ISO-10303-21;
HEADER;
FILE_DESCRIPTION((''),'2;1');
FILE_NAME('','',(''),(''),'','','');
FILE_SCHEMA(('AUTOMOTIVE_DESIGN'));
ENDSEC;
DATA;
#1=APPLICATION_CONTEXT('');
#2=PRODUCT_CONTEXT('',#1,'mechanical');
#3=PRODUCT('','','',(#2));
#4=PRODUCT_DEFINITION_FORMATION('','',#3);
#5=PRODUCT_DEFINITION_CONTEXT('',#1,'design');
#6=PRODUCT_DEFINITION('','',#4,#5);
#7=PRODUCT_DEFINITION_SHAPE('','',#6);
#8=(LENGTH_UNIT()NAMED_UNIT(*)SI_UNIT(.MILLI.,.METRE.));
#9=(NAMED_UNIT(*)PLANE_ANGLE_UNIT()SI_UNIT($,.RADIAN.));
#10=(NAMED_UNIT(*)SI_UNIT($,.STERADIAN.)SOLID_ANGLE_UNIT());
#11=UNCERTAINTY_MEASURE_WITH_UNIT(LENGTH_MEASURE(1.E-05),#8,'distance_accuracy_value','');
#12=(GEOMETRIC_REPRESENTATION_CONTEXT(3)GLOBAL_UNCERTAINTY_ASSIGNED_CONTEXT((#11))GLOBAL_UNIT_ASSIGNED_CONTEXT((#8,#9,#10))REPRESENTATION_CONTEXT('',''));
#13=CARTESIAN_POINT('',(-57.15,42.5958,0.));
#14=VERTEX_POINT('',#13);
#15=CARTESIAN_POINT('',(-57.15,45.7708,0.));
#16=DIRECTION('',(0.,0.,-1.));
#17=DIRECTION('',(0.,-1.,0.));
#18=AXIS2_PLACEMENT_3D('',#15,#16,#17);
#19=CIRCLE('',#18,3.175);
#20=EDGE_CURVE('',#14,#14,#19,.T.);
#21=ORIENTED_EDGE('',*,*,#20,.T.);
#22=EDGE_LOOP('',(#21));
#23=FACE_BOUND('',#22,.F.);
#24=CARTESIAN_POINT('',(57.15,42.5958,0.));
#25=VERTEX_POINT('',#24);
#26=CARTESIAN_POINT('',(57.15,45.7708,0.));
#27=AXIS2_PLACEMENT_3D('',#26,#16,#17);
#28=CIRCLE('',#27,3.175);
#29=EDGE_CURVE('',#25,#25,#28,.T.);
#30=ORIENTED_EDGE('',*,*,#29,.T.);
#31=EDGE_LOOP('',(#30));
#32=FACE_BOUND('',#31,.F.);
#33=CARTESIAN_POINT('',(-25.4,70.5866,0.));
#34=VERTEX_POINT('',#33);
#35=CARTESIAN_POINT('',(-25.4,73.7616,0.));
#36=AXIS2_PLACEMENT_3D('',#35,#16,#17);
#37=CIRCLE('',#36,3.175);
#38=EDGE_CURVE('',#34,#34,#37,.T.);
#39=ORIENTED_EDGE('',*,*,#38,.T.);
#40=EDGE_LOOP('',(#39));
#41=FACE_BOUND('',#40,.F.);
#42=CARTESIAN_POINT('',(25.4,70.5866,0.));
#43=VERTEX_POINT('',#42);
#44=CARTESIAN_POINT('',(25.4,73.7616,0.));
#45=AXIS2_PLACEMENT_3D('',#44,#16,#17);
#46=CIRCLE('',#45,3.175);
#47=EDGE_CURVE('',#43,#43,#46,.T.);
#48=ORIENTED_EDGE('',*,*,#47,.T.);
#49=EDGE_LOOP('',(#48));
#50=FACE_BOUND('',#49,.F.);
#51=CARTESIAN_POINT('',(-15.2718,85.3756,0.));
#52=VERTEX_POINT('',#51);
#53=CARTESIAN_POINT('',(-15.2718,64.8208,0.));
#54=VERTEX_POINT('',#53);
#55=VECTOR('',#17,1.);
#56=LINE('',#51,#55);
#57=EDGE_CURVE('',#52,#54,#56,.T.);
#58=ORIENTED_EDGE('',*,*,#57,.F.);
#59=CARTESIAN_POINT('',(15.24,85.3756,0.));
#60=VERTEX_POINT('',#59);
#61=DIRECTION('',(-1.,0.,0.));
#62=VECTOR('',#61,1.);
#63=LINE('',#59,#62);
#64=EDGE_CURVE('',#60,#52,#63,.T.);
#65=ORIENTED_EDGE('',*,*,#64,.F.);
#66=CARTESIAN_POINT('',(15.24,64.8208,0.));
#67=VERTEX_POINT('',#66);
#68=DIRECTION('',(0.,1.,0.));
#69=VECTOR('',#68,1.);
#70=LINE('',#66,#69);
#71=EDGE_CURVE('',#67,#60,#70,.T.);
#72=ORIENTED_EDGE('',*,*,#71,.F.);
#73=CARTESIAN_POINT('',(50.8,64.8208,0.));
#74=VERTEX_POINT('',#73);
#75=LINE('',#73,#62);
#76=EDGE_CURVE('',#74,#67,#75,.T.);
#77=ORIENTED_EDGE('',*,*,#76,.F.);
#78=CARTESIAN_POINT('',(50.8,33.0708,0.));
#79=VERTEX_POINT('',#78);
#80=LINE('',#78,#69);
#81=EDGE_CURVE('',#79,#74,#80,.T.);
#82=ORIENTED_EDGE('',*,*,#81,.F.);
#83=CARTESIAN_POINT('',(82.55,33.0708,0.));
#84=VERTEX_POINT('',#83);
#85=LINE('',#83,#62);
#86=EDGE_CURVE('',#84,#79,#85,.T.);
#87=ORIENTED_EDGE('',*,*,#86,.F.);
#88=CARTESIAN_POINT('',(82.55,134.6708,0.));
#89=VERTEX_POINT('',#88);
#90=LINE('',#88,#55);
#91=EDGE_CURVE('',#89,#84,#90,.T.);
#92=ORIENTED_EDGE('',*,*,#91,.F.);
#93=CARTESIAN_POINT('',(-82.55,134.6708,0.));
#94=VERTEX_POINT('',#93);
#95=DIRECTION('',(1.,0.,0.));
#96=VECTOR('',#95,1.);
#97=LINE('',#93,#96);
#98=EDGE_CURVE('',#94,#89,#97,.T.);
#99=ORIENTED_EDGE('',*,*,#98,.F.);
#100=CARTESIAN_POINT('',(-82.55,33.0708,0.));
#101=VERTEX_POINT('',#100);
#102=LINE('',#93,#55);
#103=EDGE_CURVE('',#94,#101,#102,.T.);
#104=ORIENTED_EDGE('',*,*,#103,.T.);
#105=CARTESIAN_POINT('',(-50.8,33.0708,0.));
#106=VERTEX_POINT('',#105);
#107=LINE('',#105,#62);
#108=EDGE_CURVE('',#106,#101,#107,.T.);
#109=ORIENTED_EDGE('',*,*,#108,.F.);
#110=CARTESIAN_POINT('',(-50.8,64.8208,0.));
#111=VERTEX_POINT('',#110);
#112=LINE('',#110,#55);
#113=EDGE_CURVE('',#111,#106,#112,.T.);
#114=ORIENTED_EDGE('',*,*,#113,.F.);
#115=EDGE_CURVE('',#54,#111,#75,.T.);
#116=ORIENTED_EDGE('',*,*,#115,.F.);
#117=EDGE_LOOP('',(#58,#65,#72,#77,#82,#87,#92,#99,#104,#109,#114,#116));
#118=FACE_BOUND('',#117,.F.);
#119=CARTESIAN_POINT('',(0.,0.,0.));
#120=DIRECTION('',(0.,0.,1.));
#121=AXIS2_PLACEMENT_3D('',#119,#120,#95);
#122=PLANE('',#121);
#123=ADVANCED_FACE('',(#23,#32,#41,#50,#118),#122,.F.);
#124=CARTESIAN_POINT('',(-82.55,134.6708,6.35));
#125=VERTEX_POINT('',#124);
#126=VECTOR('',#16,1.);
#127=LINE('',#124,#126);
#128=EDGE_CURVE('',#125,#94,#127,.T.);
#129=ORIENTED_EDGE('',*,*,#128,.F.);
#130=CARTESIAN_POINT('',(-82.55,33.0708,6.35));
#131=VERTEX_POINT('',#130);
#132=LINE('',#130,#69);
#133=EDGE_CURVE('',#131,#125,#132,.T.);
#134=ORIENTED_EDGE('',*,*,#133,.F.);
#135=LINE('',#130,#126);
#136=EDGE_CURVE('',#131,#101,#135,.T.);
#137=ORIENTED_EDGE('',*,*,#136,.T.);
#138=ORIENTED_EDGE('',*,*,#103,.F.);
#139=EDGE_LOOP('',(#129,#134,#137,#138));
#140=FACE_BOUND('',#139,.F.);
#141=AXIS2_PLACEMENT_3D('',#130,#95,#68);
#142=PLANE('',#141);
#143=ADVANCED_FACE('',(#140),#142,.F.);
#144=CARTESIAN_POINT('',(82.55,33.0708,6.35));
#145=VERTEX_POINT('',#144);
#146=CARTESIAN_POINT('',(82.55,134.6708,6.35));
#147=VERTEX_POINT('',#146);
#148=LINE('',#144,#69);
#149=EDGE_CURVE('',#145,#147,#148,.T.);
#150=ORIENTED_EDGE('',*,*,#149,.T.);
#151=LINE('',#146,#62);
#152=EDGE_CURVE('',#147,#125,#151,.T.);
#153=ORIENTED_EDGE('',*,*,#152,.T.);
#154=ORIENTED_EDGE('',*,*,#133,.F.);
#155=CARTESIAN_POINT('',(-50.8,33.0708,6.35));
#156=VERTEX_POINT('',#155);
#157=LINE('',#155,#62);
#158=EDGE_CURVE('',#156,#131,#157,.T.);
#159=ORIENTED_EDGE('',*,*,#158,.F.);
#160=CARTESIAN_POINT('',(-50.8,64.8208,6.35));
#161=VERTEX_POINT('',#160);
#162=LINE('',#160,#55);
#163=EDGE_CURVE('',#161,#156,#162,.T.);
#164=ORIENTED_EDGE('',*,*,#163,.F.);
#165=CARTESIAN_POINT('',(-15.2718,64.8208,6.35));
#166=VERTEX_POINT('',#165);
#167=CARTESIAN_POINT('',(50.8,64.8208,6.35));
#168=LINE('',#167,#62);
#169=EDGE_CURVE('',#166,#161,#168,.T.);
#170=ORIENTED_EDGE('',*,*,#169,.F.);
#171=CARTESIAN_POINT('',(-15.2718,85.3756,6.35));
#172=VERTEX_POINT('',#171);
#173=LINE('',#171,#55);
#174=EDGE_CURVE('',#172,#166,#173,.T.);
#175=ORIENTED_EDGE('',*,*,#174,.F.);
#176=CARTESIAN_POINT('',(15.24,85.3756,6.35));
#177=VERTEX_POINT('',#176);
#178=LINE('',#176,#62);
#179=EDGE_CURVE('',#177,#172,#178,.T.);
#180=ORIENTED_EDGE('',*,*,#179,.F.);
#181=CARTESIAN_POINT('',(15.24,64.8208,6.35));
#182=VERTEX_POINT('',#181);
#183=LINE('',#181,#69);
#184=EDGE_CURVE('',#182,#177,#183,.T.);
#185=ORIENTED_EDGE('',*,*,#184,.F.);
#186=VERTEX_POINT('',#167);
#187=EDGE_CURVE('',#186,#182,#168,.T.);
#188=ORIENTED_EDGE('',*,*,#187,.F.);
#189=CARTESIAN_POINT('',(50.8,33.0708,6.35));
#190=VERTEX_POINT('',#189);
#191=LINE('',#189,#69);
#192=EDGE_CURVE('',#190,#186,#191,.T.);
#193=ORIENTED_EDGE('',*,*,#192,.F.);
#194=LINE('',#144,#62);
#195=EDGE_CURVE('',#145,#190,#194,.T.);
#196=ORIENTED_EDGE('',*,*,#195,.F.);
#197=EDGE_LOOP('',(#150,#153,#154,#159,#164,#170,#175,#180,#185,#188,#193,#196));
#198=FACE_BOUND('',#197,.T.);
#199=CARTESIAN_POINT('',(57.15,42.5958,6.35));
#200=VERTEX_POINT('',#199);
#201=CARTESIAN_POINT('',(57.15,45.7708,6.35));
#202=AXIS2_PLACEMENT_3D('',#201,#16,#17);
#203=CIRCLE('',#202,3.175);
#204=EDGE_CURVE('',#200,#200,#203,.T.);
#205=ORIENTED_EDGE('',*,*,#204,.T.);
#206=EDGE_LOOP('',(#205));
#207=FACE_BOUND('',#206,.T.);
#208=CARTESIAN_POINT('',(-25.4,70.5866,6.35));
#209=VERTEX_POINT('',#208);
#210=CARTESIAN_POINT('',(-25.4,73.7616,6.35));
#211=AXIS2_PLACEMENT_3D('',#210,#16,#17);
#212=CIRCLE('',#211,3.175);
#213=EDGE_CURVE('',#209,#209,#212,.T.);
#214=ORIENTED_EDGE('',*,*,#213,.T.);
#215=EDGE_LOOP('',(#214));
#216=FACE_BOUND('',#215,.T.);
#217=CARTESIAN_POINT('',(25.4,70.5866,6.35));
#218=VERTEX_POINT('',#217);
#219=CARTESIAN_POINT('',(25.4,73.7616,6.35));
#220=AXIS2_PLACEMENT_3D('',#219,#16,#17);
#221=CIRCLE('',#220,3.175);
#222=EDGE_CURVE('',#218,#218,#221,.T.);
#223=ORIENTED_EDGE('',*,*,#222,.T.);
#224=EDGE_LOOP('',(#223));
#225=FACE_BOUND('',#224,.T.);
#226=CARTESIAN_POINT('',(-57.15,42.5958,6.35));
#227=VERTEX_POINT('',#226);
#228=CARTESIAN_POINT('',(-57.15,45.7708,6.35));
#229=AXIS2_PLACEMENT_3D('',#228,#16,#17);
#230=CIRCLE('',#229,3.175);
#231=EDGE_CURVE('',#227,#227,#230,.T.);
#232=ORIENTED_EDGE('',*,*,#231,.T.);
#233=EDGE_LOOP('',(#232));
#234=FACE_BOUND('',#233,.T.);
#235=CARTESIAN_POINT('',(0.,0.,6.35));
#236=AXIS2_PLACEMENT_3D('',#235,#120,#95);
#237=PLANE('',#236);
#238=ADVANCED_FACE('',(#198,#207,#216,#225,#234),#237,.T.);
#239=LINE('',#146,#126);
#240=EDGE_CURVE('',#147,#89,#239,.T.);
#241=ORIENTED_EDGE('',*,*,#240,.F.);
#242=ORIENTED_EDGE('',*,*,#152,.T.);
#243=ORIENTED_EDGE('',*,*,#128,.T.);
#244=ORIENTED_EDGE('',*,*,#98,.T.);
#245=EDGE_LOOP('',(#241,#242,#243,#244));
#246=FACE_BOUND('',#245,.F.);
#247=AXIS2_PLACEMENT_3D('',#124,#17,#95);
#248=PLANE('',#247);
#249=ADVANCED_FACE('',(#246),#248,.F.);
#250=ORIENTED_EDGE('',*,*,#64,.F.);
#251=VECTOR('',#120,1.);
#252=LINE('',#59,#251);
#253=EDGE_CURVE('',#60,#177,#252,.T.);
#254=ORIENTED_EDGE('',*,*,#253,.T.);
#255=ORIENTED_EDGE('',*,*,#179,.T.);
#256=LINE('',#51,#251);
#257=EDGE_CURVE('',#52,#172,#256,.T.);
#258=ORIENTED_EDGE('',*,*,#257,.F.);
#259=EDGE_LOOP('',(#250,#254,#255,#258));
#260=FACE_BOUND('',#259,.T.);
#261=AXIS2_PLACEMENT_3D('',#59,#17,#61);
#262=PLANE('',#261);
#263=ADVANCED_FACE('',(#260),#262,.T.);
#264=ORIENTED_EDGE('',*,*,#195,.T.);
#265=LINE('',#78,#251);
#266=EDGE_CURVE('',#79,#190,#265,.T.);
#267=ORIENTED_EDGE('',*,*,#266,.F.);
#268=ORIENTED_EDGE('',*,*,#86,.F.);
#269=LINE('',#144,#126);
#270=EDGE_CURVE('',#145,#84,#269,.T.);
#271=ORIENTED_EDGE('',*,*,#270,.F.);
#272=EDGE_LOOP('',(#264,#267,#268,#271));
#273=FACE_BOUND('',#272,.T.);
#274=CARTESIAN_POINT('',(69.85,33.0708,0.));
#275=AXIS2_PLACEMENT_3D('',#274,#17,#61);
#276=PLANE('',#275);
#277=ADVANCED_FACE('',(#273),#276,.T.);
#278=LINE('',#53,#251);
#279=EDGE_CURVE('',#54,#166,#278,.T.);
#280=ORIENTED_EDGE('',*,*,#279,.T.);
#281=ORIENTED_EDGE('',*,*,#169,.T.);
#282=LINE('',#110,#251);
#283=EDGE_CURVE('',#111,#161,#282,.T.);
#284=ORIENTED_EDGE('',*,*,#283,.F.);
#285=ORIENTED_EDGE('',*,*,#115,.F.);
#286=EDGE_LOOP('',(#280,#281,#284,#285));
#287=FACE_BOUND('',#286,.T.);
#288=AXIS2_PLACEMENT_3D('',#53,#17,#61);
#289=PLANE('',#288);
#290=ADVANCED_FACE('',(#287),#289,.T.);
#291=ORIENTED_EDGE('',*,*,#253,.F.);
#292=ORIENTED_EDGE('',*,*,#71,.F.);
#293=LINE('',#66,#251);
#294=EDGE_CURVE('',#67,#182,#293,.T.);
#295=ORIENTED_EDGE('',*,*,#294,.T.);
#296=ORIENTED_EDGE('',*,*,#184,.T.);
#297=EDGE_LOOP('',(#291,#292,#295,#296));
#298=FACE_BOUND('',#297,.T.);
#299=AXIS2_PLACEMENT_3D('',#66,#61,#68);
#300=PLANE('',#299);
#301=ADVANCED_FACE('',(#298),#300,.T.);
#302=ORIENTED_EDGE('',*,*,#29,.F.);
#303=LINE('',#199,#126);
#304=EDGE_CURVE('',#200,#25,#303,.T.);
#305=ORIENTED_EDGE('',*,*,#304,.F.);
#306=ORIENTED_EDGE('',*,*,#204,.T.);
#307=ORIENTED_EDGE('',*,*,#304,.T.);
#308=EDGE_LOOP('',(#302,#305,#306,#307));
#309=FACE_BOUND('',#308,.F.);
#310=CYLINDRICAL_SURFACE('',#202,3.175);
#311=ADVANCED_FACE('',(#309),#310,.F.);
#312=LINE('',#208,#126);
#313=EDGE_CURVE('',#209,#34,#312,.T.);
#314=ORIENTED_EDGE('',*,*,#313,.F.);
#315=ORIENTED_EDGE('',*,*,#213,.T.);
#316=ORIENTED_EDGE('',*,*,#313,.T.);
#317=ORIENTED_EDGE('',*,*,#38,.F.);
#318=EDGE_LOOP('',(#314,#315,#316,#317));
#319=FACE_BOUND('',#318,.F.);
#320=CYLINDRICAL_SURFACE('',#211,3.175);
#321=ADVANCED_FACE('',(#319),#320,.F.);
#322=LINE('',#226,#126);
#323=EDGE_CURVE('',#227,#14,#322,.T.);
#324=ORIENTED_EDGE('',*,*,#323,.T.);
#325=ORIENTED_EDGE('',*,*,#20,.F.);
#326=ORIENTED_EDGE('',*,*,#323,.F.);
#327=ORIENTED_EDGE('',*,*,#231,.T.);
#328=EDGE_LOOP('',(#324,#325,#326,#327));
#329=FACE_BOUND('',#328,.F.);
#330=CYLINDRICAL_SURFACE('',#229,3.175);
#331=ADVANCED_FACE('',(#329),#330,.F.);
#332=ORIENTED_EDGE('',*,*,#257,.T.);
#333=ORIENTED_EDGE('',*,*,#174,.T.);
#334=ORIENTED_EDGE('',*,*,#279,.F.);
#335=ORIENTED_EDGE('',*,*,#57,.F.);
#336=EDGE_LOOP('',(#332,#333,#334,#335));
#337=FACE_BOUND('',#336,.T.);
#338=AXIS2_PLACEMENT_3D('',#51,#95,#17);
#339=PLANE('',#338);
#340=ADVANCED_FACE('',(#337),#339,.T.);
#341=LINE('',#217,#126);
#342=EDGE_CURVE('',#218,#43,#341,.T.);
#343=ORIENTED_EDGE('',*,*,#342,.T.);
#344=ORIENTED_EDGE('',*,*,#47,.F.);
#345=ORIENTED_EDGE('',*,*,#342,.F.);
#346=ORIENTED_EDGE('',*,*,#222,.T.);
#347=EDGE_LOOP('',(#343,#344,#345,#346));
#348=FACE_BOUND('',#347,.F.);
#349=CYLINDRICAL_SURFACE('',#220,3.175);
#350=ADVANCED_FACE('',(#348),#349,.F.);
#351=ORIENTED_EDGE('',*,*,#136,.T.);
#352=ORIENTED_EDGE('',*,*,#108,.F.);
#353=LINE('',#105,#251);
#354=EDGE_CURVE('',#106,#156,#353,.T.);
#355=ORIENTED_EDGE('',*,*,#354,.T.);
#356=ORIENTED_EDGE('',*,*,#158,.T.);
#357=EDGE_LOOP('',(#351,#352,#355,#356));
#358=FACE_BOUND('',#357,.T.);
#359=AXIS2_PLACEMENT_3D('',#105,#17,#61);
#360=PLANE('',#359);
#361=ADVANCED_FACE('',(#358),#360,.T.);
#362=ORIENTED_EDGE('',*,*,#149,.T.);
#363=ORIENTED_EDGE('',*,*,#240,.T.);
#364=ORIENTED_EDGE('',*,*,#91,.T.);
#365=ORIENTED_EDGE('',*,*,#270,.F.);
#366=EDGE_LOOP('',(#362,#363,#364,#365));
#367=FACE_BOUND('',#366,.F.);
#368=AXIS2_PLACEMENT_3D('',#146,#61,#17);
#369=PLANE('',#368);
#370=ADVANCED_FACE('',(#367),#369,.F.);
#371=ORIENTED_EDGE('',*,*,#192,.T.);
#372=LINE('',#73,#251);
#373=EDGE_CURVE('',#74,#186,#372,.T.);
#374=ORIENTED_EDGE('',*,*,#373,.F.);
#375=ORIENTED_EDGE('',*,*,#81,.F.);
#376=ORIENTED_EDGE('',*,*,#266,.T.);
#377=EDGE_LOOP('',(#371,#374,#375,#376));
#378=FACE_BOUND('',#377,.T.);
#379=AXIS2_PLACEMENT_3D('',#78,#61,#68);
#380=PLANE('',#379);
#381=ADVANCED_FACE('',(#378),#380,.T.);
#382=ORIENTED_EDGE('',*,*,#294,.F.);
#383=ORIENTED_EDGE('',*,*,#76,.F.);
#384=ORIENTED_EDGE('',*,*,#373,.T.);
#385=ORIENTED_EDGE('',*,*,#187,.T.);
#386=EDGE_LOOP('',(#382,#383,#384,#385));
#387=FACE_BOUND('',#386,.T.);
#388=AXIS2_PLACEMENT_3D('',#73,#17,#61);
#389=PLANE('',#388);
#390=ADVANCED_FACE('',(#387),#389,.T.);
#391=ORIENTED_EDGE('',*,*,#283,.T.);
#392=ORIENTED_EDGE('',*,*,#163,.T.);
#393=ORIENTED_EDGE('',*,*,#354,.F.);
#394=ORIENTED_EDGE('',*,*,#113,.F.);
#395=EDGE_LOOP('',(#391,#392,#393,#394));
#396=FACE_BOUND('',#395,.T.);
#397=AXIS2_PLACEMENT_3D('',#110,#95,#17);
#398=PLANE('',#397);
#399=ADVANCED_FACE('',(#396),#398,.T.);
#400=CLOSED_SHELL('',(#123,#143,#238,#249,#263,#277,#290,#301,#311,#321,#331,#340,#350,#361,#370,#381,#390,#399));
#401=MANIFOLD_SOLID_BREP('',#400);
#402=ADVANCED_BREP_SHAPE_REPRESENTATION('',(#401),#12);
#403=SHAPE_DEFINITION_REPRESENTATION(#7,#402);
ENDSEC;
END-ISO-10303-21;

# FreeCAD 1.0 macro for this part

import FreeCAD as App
import Part
import Sketcher
Q = App.Units.Quantity

doc = App.newDocument("Part")
body = doc.addObject("PartDesign::Body", "Body")

sketch1 = body.newObject("Sketcher::SketchObject", "Sketch")
sketch1.AttachmentSupport = (doc.getObject("XY_Plane"), [""])
sketch1.MapMode = "FlatFace"
sketch1.addGeometry([
    Part.LineSegment(App.Vector(70, 122, 0), App.Vector(-70, 122, 0)),
    Part.LineSegment(App.Vector(-70, 122, 0), App.Vector(-70, 33, 0)),
    Part.LineSegment(App.Vector(-70, 33, 0), App.Vector(-51, 33, 0)),
    Part.LineSegment(App.Vector(-51, 33, 0), App.Vector(-51, 65, 0)),
    Part.LineSegment(App.Vector(-51, 65, 0), App.Vector(-15, 65, 0)),
    Part.LineSegment(App.Vector(-15, 65, 0), App.Vector(-15, 85, 0)),
    Part.LineSegment(App.Vector(-15, 85, 0), App.Vector(15, 85, 0)),
    Part.LineSegment(App.Vector(15, 85, 0), App.Vector(15, 65, 0)),
    Part.LineSegment(App.Vector(15, 65, 0), App.Vector(51, 65, 0)),
    Part.LineSegment(App.Vector(51, 65, 0), App.Vector(51, 33, 0)),
    Part.LineSegment(App.Vector(51, 33, 0), App.Vector(70, 33, 0)),
    Part.LineSegment(App.Vector(70, 33, 0), App.Vector(70, 122, 0)),
], False)
sketch1.addConstraint([
    Sketcher.Constraint("Coincident", 0, 2, 1, 1),
    Sketcher.Constraint("Coincident", 1, 2, 2, 1),
    Sketcher.Constraint("Coincident", 2, 2, 3, 1),
    Sketcher.Constraint("Coincident", 3, 2, 4, 1),
    Sketcher.Constraint("Coincident", 4, 2, 5, 1),
    Sketcher.Constraint("Coincident", 5, 2, 6, 1),
    Sketcher.Constraint("Coincident", 6, 2, 7, 1),
    Sketcher.Constraint("Coincident", 7, 2, 8, 1),
    Sketcher.Constraint("Coincident", 8, 2, 9, 1),
    Sketcher.Constraint("Coincident", 9, 2, 10, 1),
    Sketcher.Constraint("Coincident", 10, 2, 11, 1),
    Sketcher.Constraint("Coincident", 11, 2, 0, 1),
    Sketcher.Constraint("Horizontal", 0),
    Sketcher.Constraint("Vertical", 1),
    Sketcher.Constraint("Horizontal", 2),
    Sketcher.Constraint("Vertical", 3),
    Sketcher.Constraint("Horizontal", 4),
    Sketcher.Constraint("Vertical", 5),
    Sketcher.Constraint("Horizontal", 6),
    Sketcher.Constraint("Vertical", 7),
    Sketcher.Constraint("Horizontal", 8),
    Sketcher.Constraint("Vertical", 9),
    Sketcher.Constraint("Horizontal", 10),
    Sketcher.Constraint("Vertical", 11),
    Sketcher.Constraint("Symmetric", 3, 2, 8, 2, -2),
    Sketcher.Constraint("Symmetric", 1, 2, 10, 2, -2),
    Sketcher.Constraint("DistanceX", 0, 2, 0, 1, Q("5.5 in")),
    Sketcher.Constraint("DistanceX", 8, 1, 8, 2, Q("1.4 in")),
    Sketcher.Constraint("DistanceY", 1, 2, 1, 1, Q("3.5 in")),
    Sketcher.Constraint("DistanceX", 2, 2, -1, 1, Q("2 in")),
    Sketcher.Constraint("DistanceY", 3, 1, 3, 2, Q("1.25 in")),
    Sketcher.Constraint("DistanceY", -1, 1, 0, 2, Q("4.802 in")),
    Sketcher.Constraint("DistanceX", 4, 1, 4, 2, 35.5282),
    Sketcher.Constraint("DistanceY", 5, 1, 5, 2, 20.5548),
])
pad1 = body.newObject("PartDesign::Pad", "Pad")
pad1.Profile = sketch1
pad1.Length = Q("0.25 in")

sketch2 = body.newObject("Sketcher::SketchObject", "Sketch001")
sketch2.AttachmentSupport = (doc.getObject("XY_Plane"), [""])
sketch2.MapMode = "FlatFace"
sketch2.AttachmentOffset = App.Placement(App.Vector(0, 0, 0.25 * 25.4), App.Rotation())
sketch2.addGeometry([
    Part.Circle(App.Vector(25.4, 73.8, 0), App.Vector(0, 0, 1), 3.2),
    Part.Circle(App.Vector(-57.1, 45.8, 0), App.Vector(0, 0, 1), 3.2),
    Part.Circle(App.Vector(57.1, 45.8, 0), App.Vector(0, 0, 1), 3.2),
    Part.Circle(App.Vector(-25.4, 73.8, 0), App.Vector(0, 0, 1), 3.2),
], False)
sketch2.addConstraint([
    Sketcher.Constraint("Equal", 0, 1),
    Sketcher.Constraint("Equal", 1, 2),
    Sketcher.Constraint("Equal", 2, 3),
    Sketcher.Constraint("Symmetric", 1, 3, 2, 3, -2),
    Sketcher.Constraint("Symmetric", 0, 3, 3, 3, -2),
    Sketcher.Constraint("Diameter", 0, Q("0.25 in")),
    Sketcher.Constraint("DistanceX", -1, 1, 0, 3, Q("1 in")),
    Sketcher.Constraint("DistanceX", 1, 3, 2, 3, Q("4.5 in")),
    Sketcher.Constraint("DistanceY", -1, 1, 0, 3, Q("2.904 in")),
    Sketcher.Constraint("DistanceY", -1, 1, 1, 3, Q("1.802 in")),
])
doc.recompute()
hole = body.newObject("PartDesign::Hole", "Hole")
hole.Profile = sketch2
hole.ThreadType = "None"
hole.Diameter = Q("0.25 in")
hole.DepthType = "Dimension"
hole.Depth = Q("1 in")
hole.DrillPoint = "Angled"
hole.DrillPointAngle = 118

sketch3 = body.newObject("Sketcher::SketchObject", "Sketch002")
sketch3.AttachmentSupport = (doc.getObject("XY_Plane"), [""])
sketch3.MapMode = "FlatFace"
sketch3.AttachmentOffset = App.Placement(App.Vector(0, 0, 0.25 * 25.4), App.Rotation())
sketch3.addGeometry([
    Part.LineSegment(App.Vector(-83, 33, 0), App.Vector(-70, 33, 0)),
    Part.LineSegment(App.Vector(-70, 33, 0), App.Vector(-70, 122, 0)),
    Part.LineSegment(App.Vector(-70, 122, 0), App.Vector(70, 122, 0)),
    Part.LineSegment(App.Vector(70, 122, 0), App.Vector(70, 33, 0)),
    Part.LineSegment(App.Vector(70, 33, 0), App.Vector(83, 33, 0)),
    Part.LineSegment(App.Vector(83, 33, 0), App.Vector(83, 135, 0)),
    Part.LineSegment(App.Vector(83, 135, 0), App.Vector(-83, 135, 0)),
    Part.LineSegment(App.Vector(-83, 135, 0), App.Vector(-83, 33, 0)),
], False)
sketch3.addConstraint([
    Sketcher.Constraint("Coincident", 0, 2, 1, 1),
    Sketcher.Constraint("Coincident", 1, 2, 2, 1),
    Sketcher.Constraint("Coincident", 2, 2, 3, 1),
    Sketcher.Constraint("Coincident", 3, 2, 4, 1),
    Sketcher.Constraint("Coincident", 4, 2, 5, 1),
    Sketcher.Constraint("Coincident", 5, 2, 6, 1),
    Sketcher.Constraint("Coincident", 6, 2, 7, 1),
    Sketcher.Constraint("Coincident", 7, 2, 0, 1),
    Sketcher.Constraint("Horizontal", 0),
    Sketcher.Constraint("Vertical", 1),
    Sketcher.Constraint("Horizontal", 2),
    Sketcher.Constraint("Vertical", 3),
    Sketcher.Constraint("Horizontal", 4),
    Sketcher.Constraint("Vertical", 5),
    Sketcher.Constraint("Horizontal", 6),
    Sketcher.Constraint("Vertical", 7),
    Sketcher.Constraint("Symmetric", 0, 2, 3, 2, -2),
    Sketcher.Constraint("Equal", 0, 4),
    Sketcher.Constraint("DistanceX", 0, 1, 0, 2, Q("0.5 in")),
    Sketcher.Constraint("DistanceY", 2, 2, 5, 2, Q("0.5 in")),
    Sketcher.Constraint("DistanceY", 5, 1, 5, 2, Q("4 in")),
    Sketcher.Constraint("DistanceX", 2, 1, 2, 2, Q("5.5 in")),
    Sketcher.Constraint("DistanceY", -1, 1, 0, 2, Q("1.302 in")),
])
pad2 = body.newObject("PartDesign::Pad", "Pad001")
pad2.Profile = sketch3
pad2.Length = Q("0.25 in")
pad2.Reversed = True

doc.recompute()
